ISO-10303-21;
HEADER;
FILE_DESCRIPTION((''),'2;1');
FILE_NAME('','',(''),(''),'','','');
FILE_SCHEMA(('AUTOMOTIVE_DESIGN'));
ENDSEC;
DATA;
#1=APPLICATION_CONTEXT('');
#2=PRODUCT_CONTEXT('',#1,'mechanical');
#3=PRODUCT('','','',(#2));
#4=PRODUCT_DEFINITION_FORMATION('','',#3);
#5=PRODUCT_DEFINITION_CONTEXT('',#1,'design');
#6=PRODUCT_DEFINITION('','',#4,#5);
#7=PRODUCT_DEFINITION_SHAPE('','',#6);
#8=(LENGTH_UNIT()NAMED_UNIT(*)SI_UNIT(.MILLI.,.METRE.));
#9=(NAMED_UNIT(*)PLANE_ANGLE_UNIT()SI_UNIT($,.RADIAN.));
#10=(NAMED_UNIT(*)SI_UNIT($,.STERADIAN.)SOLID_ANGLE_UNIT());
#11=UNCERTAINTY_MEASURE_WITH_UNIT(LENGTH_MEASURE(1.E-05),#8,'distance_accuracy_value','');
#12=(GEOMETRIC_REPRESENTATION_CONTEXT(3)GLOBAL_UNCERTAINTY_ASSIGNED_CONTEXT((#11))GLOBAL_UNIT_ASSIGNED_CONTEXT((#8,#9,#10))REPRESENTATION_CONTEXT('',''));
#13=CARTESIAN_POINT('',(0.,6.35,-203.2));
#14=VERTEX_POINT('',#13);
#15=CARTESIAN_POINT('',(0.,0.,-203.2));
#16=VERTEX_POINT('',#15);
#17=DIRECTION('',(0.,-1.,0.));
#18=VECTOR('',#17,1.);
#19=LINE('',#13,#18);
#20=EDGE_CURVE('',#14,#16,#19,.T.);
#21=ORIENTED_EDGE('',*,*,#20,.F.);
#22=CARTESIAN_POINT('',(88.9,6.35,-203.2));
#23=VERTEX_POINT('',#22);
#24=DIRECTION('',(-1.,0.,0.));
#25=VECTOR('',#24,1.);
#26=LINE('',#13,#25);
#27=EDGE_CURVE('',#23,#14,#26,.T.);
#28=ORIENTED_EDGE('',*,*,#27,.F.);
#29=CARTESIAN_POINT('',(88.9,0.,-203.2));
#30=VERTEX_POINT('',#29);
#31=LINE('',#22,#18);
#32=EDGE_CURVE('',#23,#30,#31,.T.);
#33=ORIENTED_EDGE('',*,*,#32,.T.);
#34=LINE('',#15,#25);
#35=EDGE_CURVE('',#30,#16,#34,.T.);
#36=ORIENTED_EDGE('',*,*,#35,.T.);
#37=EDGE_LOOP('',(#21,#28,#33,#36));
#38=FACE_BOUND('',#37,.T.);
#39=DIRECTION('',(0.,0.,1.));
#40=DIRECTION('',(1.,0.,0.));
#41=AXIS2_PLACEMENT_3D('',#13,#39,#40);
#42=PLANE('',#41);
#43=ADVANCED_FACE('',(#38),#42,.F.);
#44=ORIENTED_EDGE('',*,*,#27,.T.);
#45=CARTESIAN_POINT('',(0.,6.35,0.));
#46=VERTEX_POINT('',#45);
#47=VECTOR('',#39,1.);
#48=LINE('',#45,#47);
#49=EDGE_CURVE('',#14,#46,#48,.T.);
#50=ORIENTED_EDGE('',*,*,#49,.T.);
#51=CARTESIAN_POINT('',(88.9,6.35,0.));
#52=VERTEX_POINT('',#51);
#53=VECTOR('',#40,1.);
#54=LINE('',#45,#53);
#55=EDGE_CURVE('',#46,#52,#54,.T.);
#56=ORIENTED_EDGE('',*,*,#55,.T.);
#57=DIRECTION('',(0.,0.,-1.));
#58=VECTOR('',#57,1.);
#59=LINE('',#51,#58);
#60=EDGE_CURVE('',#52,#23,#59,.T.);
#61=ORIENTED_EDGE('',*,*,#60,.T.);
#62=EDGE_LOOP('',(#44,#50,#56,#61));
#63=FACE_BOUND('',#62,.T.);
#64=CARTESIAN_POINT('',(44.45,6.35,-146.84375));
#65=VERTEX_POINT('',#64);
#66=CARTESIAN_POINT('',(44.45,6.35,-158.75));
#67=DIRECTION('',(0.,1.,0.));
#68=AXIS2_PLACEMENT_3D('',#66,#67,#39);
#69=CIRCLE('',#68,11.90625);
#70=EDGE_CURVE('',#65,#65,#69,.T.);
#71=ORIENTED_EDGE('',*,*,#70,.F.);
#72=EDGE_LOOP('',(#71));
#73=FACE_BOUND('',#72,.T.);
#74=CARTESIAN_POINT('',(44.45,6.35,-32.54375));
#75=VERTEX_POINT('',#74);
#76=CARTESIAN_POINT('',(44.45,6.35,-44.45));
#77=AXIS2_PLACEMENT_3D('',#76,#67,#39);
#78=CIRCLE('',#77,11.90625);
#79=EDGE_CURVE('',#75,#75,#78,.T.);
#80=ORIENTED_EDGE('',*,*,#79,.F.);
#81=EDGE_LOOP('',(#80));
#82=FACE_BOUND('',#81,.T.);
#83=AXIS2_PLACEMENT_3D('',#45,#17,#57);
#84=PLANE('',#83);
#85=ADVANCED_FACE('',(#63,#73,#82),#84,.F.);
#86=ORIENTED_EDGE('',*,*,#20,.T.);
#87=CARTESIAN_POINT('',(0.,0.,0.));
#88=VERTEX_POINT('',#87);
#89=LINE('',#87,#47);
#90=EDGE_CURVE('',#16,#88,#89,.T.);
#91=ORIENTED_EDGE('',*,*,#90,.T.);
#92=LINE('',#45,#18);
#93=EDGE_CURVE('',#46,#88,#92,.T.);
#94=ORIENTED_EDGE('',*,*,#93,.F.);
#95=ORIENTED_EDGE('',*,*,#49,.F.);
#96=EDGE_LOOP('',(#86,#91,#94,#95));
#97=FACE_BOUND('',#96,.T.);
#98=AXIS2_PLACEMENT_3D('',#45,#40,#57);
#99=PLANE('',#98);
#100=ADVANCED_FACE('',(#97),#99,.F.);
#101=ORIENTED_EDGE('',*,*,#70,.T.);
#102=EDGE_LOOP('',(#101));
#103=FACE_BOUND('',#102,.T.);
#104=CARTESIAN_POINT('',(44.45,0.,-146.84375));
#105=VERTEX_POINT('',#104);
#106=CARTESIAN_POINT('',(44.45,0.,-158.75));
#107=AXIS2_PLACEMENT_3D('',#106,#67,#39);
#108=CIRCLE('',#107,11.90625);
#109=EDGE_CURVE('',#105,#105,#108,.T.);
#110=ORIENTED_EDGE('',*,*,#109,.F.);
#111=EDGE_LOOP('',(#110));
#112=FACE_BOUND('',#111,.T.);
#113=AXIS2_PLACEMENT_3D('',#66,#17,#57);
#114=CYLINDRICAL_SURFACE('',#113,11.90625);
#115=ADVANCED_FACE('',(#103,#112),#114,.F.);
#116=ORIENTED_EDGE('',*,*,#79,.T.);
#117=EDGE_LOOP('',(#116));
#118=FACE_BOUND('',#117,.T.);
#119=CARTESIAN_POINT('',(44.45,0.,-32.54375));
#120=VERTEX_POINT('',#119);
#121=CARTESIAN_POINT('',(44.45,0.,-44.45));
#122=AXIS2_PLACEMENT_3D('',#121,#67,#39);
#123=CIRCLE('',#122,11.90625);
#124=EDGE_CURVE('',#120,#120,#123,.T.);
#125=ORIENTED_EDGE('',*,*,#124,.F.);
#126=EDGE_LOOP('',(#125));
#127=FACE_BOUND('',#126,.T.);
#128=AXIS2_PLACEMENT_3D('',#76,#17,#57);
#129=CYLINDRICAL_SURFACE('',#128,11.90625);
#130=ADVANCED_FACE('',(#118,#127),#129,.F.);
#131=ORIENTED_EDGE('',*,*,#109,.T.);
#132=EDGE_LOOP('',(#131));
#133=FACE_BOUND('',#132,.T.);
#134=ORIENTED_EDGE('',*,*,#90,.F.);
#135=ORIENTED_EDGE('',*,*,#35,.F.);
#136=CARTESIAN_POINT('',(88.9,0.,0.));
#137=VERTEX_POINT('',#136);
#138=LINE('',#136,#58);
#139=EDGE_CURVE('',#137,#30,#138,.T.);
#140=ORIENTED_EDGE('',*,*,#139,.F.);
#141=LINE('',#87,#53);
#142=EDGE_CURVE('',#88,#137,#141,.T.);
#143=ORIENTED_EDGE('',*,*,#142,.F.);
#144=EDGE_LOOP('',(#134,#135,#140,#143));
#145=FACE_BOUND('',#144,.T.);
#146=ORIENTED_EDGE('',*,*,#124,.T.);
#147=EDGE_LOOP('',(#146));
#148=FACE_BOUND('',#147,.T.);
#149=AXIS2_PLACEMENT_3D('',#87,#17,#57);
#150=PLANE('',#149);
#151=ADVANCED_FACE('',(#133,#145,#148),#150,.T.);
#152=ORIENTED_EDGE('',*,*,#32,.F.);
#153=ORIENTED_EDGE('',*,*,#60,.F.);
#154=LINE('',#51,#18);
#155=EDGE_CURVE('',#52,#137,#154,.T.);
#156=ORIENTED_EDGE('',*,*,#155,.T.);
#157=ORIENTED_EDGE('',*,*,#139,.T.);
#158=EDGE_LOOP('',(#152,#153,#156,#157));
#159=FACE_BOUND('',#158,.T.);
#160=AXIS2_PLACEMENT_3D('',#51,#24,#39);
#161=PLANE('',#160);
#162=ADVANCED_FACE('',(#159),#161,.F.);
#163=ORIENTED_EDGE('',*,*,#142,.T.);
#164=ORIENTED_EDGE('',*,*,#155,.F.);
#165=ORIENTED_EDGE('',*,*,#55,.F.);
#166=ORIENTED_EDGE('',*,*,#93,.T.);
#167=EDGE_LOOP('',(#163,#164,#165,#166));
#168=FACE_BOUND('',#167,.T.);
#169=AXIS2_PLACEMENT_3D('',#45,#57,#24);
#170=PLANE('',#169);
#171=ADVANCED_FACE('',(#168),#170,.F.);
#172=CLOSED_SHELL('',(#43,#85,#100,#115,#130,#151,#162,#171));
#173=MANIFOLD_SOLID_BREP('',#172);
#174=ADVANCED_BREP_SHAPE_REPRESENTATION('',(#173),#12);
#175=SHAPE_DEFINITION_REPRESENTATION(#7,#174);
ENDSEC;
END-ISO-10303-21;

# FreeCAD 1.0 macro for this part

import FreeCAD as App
import Part
import Sketcher

V = App.Vector
Q = App.Units.Quantity


def add_polygon(sketch, points):
    """Adds a closed chain of lines whose ends are joined by coincident constraints."""
    first, n = sketch.GeometryCount, len(points)
    for a, b in zip(points, points[1:] + points[:1]):
        sketch.addGeometry(Part.LineSegment(App.Vector(*a, 0), App.Vector(*b, 0)), False)
    for i in range(n):
        sketch.addConstraint(Sketcher.Constraint("Coincident", first + i, 2, first + (i + 1) % n, 1))

doc = App.newDocument("Part")
body = doc.addObject("PartDesign::Body", "Body")

sketch1 = doc.addObject("Sketcher::SketchObject", "Sketch")
body.addObject(sketch1)
sketch1.AttachmentSupport = (doc.XZ_Plane, [""])
sketch1.MapMode = "FlatFace"
add_polygon(sketch1, [(0, -203), (0, 0), (89, 0), (89, -203)])
sketch1.addGeometry(Part.Circle(V(44, -44, 0), V(0, 0, 1), 12), False)
sketch1.addGeometry(Part.Circle(V(44, -159, 0), V(0, 0, 1), 12), False)
sketch1.addConstraint(Sketcher.Constraint("Vertical", 0))
sketch1.addConstraint(Sketcher.Constraint("Horizontal", 1))
sketch1.addConstraint(Sketcher.Constraint("Vertical", 2))
sketch1.addConstraint(Sketcher.Constraint("Horizontal", 3))
sketch1.addConstraint(Sketcher.Constraint("Coincident", 0, 2, -1, 1))
sketch1.addConstraint(Sketcher.Constraint("Equal", 4, 5))
sketch1.addConstraint(Sketcher.Constraint("Vertical", 4, 3, 5, 3))
sketch1.addConstraint(Sketcher.Constraint("DistanceY", 0, 1, 0, 2, Q("8 in")))
sketch1.addConstraint(Sketcher.Constraint("Diameter", 4, Q("0.9375 in")))
sketch1.addConstraint(Sketcher.Constraint("DistanceX", 1, 1, 1, 2, Q("3.5 in")))
sketch1.addConstraint(Sketcher.Constraint("DistanceY", 5, 3, 4, 3, Q("4.5 in")))
sketch1.addConstraint(Sketcher.Constraint("DistanceX", -1, 1, 4, 3, Q("1.75 in")))
sketch1.addConstraint(Sketcher.Constraint("DistanceY", 4, 3, -1, 1, Q("1.75 in")))
pad1 = doc.addObject("PartDesign::Pad", "Pad")
body.addObject(pad1)
pad1.Profile = sketch1
pad1.Length = Q("0.25 in")
pad1.Reversed = True

doc.recompute()
